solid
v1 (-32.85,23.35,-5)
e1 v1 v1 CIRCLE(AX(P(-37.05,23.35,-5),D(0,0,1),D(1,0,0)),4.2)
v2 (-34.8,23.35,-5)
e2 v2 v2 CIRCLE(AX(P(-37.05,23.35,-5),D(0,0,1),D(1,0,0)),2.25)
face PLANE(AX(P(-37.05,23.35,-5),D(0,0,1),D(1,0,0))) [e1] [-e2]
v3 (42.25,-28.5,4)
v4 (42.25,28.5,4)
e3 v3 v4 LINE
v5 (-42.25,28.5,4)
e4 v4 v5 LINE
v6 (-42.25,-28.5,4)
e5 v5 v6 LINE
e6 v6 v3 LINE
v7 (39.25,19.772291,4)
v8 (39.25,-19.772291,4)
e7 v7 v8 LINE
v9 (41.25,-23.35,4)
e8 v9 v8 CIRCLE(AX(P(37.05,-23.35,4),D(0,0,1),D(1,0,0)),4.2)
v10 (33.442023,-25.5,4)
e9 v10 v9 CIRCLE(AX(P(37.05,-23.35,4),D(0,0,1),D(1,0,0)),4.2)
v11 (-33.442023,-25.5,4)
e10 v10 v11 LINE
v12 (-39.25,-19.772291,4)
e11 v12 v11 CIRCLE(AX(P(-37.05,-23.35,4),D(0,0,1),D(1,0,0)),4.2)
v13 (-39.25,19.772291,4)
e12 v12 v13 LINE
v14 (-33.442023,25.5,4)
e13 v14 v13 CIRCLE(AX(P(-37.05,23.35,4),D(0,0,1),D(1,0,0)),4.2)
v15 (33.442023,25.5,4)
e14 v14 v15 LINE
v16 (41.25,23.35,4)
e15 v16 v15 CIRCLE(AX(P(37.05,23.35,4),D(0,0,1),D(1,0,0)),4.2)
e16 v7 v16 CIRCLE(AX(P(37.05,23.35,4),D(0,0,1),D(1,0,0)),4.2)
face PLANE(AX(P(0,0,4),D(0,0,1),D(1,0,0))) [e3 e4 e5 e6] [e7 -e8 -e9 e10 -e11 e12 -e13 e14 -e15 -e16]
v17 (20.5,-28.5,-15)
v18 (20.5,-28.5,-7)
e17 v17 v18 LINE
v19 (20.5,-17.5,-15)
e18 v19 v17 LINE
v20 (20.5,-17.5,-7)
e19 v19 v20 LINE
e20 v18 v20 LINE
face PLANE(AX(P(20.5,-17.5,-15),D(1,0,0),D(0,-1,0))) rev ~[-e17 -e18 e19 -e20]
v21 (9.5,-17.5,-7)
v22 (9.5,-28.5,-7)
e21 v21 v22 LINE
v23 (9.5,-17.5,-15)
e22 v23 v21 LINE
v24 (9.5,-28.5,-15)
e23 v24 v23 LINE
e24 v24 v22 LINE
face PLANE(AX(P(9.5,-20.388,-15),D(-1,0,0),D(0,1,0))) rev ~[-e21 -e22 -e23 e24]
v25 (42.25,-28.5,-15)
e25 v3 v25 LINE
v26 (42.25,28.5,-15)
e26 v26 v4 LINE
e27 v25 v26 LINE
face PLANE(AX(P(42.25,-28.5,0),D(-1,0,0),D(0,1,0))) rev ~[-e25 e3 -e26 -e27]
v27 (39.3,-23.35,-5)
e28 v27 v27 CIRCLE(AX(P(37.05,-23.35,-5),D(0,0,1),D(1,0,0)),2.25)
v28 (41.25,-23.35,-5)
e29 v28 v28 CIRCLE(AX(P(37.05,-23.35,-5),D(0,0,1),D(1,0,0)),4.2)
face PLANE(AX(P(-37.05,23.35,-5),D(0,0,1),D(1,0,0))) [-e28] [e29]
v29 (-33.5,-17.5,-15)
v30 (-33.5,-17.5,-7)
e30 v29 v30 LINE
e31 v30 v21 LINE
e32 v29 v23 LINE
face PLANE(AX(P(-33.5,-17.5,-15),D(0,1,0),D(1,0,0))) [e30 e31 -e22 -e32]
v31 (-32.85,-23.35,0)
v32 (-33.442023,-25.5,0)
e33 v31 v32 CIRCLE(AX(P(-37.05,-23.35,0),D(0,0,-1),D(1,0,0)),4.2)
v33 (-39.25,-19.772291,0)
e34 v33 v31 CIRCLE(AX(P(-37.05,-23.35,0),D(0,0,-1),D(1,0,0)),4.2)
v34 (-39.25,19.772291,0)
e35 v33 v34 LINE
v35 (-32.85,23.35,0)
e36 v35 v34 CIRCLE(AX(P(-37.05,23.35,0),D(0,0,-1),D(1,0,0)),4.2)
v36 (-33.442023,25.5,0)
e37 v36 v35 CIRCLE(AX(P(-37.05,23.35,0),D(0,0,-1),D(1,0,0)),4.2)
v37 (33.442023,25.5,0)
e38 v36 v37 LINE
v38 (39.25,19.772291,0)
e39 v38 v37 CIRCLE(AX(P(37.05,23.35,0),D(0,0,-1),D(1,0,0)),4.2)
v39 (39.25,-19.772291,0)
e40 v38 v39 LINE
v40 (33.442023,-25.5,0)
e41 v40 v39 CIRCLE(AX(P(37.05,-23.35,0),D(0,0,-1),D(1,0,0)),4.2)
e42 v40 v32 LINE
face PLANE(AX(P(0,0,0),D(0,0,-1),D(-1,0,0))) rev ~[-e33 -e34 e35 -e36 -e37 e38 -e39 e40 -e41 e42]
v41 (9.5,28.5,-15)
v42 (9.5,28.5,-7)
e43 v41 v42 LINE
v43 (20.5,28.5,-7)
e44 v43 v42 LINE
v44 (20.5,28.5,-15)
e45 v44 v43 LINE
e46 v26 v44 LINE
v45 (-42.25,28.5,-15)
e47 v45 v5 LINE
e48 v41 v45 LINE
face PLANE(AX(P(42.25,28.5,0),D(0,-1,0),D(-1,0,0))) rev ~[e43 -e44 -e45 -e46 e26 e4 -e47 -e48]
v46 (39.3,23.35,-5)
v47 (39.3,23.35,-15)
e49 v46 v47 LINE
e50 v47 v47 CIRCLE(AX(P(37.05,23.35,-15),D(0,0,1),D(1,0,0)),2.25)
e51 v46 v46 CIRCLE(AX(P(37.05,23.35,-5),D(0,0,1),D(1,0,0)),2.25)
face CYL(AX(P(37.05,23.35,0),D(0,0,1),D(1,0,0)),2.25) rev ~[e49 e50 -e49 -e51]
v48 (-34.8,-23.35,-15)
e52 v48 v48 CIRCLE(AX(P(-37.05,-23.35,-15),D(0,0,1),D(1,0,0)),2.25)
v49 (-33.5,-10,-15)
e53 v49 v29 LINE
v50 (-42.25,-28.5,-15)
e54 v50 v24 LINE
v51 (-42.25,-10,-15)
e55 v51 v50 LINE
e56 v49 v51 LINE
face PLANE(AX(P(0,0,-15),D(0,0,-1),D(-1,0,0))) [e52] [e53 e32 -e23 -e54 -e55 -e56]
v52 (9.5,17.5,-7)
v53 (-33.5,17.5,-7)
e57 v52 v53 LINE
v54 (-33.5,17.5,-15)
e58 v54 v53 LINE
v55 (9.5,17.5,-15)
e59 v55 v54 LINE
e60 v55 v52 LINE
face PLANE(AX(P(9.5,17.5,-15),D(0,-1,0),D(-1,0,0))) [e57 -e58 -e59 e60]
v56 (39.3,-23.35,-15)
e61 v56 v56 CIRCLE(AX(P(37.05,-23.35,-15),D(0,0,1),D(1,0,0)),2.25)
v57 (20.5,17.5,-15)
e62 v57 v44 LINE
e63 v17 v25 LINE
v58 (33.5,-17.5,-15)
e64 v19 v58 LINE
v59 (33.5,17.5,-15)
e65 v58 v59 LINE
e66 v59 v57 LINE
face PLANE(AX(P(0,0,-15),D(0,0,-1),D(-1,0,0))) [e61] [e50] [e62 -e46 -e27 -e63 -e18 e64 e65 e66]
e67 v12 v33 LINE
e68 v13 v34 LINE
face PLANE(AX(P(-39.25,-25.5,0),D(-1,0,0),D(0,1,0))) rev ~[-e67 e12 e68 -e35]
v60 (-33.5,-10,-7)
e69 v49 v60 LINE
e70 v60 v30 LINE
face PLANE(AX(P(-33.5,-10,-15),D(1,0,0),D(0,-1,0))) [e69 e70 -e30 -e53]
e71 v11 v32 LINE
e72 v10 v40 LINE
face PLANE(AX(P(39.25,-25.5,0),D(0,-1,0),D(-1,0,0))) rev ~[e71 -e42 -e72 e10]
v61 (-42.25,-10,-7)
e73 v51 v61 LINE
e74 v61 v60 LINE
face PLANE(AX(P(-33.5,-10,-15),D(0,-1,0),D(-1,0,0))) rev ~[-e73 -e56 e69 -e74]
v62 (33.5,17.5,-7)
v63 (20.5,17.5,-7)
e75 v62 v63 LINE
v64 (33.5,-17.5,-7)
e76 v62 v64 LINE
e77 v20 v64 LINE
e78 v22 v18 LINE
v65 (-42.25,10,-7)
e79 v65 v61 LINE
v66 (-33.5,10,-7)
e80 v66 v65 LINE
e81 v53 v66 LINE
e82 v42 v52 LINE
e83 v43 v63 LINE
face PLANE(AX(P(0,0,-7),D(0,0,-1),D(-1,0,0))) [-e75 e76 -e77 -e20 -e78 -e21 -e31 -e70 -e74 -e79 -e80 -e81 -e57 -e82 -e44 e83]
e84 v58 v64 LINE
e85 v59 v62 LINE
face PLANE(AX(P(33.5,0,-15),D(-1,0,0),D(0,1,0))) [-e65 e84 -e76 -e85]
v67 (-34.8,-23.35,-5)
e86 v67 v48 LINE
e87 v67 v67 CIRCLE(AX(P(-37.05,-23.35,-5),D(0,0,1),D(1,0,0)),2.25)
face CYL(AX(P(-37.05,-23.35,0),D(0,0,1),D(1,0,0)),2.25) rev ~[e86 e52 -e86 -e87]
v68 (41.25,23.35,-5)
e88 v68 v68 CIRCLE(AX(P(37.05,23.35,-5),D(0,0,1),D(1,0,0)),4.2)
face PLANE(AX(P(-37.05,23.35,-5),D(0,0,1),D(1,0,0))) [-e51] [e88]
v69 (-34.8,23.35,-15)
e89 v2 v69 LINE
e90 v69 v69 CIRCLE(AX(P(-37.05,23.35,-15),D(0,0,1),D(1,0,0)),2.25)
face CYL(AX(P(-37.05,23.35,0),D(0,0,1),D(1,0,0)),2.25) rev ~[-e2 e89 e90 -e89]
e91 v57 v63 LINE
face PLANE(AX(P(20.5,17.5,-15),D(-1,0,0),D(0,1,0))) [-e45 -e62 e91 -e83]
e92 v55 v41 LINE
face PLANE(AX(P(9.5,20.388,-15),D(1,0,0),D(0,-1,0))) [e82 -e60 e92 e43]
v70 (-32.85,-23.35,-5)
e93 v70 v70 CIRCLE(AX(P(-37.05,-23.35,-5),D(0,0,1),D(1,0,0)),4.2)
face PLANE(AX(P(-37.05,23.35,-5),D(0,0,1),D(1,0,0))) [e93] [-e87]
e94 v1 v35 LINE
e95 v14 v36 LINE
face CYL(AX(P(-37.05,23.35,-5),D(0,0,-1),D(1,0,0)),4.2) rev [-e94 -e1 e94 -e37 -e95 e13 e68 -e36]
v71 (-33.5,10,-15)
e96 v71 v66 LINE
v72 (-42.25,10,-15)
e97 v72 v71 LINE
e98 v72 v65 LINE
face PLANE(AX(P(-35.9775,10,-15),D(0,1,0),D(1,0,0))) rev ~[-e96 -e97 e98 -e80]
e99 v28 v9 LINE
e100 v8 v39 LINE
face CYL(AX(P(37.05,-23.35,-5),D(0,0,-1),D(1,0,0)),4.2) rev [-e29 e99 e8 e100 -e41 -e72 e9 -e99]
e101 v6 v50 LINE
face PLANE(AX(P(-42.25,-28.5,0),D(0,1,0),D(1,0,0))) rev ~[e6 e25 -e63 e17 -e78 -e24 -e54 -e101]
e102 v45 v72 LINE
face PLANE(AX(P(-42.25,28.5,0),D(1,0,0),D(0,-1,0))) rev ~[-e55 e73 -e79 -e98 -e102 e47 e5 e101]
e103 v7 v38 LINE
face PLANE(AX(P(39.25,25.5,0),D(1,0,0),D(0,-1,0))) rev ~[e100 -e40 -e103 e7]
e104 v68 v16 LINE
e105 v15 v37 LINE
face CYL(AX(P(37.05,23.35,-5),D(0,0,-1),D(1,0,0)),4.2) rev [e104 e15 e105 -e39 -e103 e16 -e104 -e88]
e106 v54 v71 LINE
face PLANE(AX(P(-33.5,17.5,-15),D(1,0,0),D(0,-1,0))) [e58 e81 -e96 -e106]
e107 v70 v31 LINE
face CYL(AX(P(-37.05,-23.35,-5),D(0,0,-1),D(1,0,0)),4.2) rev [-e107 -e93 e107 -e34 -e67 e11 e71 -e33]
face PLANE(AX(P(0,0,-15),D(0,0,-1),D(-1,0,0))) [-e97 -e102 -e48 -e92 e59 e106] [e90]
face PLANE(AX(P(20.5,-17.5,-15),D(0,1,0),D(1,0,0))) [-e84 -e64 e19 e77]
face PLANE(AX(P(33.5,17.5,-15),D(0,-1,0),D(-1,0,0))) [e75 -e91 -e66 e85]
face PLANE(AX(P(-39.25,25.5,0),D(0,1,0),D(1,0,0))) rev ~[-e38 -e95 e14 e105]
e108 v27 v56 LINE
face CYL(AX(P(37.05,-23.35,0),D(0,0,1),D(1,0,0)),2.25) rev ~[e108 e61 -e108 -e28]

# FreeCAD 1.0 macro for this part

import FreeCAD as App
import Part
import Sketcher


def add_polygon(sketch, points):
    """Adds a closed chain of lines whose ends are joined by coincident constraints."""
    first, n = sketch.GeometryCount, len(points)
    for a, b in zip(points, points[1:] + points[:1]):
        sketch.addGeometry(Part.LineSegment(App.Vector(*a, 0), App.Vector(*b, 0)), False)
    for i in range(n):
        sketch.addConstraint(Sketcher.Constraint("Coincident", first + i, 2, first + (i + 1) % n, 1))

doc = App.newDocument("Part")
body = doc.addObject("PartDesign::Body", "Body")

# Sketch on XY plane
sketch1 = body.newObject("Sketcher::SketchObject", "Sketch")
sketch1.AttachmentSupport = (doc.getObject("XY_Plane"), [""])
sketch1.MapMode = "FlatFace"
add_polygon(sketch1, [(42, -28), (42, 28), (-42, 28), (-42, -28)])  # lines 0-3
add_polygon(sketch1, [(-39, -26), (-39, 26), (39, 26), (39, -26)])  # lines 4-7
sketch1.addConstraint([
    Sketcher.Constraint("Vertical", 0),
    Sketcher.Constraint("Horizontal", 1),
    Sketcher.Constraint("Vertical", 2),
    Sketcher.Constraint("Horizontal", 3),
    Sketcher.Constraint("Vertical", 4),
    Sketcher.Constraint("Horizontal", 5),
    Sketcher.Constraint("Vertical", 6),
    Sketcher.Constraint("Horizontal", 7),
    Sketcher.Constraint("Symmetric", 0, 2, 2, 2, -1, 1),
    Sketcher.Constraint("Symmetric", 4, 2, 6, 2, -1, 1),
    Sketcher.Constraint("DistanceY", 4, 1, 4, 2, 51.0),
    Sketcher.Constraint("DistanceX", 5, 1, 5, 2, 78.5),
    Sketcher.Constraint("DistanceX", 1, 2, 4, 2, 3.0),
    Sketcher.Constraint("DistanceY", 4, 2, 1, 2, 3.0),
])
pad1 = body.newObject("PartDesign::Pad", "Pad")
pad1.Profile = sketch1
pad1.Length = 4

# Sketch on XY plane
sketch2 = body.newObject("Sketcher::SketchObject", "Sketch001")
sketch2.AttachmentSupport = (doc.getObject("XY_Plane"), [""])
sketch2.MapMode = "FlatFace"
add_polygon(sketch2, [(-42, 28), (42, 28), (42, -28), (-42, -28)])  # lines 0-3
sketch2.addConstraint([
    Sketcher.Constraint("Horizontal", 0),
    Sketcher.Constraint("Vertical", 1),
    Sketcher.Constraint("Horizontal", 2),
    Sketcher.Constraint("Vertical", 3),
    Sketcher.Constraint("Symmetric", 0, 2, 2, 2, -1, 1),
    Sketcher.Constraint("DistanceY", 1, 2, 1, 1, 57.0),
    Sketcher.Constraint("DistanceX", 0, 1, 0, 2, 84.5),
])
pad2 = body.newObject("PartDesign::Pad", "Pad001")
pad2.Profile = sketch2
pad2.Length = 15
pad2.Reversed = True

# Sketch on XY plane
sketch3 = body.newObject("Sketcher::SketchObject", "Sketch002")
sketch3.AttachmentSupport = (doc.getObject("XY_Plane"), [""])
sketch3.MapMode = "FlatFace"
sketch3.AttachmentOffset = App.Placement(App.Vector(0, 0, -15), App.Rotation())
add_polygon(sketch3, [(20, 18), (34, 18), (34, -18), (20, -18), (20, -28), (10, -28), (10, -18), (-34, -18), (-34, -10), (-42, -10), (-42, 10), (-34, 10), (-34, 18), (10, 18), (10, 28), (20, 28)])  # lines 0-15
sketch3.addConstraint([
    Sketcher.Constraint("Horizontal", 0),
    Sketcher.Constraint("Vertical", 1),
    Sketcher.Constraint("Horizontal", 2),
    Sketcher.Constraint("Vertical", 3),
    Sketcher.Constraint("Horizontal", 4),
    Sketcher.Constraint("Vertical", 5),
    Sketcher.Constraint("Horizontal", 6),
    Sketcher.Constraint("Vertical", 7),
    Sketcher.Constraint("Horizontal", 8),
    Sketcher.Constraint("Vertical", 9),
    Sketcher.Constraint("Horizontal", 10),
    Sketcher.Constraint("Vertical", 11),
    Sketcher.Constraint("Horizontal", 12),
    Sketcher.Constraint("Vertical", 13),
    Sketcher.Constraint("Horizontal", 14),
    Sketcher.Constraint("Vertical", 15),
    Sketcher.Constraint("Symmetric", 0, 2, 6, 2, -1, 1),
    Sketcher.Constraint("Symmetric", 1, 2, 11, 2, -1, 1),
    Sketcher.Constraint("Symmetric", 5, 2, 12, 2, -1),
    Sketcher.Constraint("Symmetric", 3, 2, 14, 2, -1),
    Sketcher.Constraint("Equal", 14, 3),
    Sketcher.Constraint("Equal", 7, 11),
    Sketcher.Constraint("DistanceX", 0, 1, 0, 2, 13.0),
    Sketcher.Constraint("DistanceX", 4, 2, 4, 1, 11.0),
    Sketcher.Constraint("DistanceY", 1, 2, 1, 1, 35.0),
    Sketcher.Constraint("DistanceY", 9, 1, 9, 2, 20.0),
    Sketcher.Constraint("DistanceX", 6, 2, 1, 2, 67.0),
    Sketcher.Constraint("DistanceX", 8, 2, 8, 1, 8.75),
])
pocket1 = body.newObject("PartDesign::Pocket", "Pocket")
pocket1.Profile = sketch3
pocket1.Length = 8
pocket1.Reversed = True

# Sketch on XY plane
sketch4 = body.newObject("Sketcher::SketchObject", "Sketch003")
sketch4.AttachmentSupport = (doc.getObject("XY_Plane"), [""])
sketch4.MapMode = "FlatFace"
sketch4.addGeometry([
    Part.Circle(App.Vector(-37, -23.4, 0), App.Vector(0, 0, 1), 2.2),
    Part.Circle(App.Vector(-37, 23.4, 0), App.Vector(0, 0, 1), 2.2),
    Part.Circle(App.Vector(37, -23.4, 0), App.Vector(0, 0, 1), 2.2),
    Part.Circle(App.Vector(37, 23.4, 0), App.Vector(0, 0, 1), 2.2),
], False)
sketch4.addConstraint([
    Sketcher.Constraint("Equal", 0, 1),
    Sketcher.Constraint("Equal", 1, 2),
    Sketcher.Constraint("Equal", 2, 3),
    Sketcher.Constraint("Symmetric", 1, 3, 2, 3, -1, 1),
    Sketcher.Constraint("Symmetric", 0, 3, 3, 3, -1, 1),
    Sketcher.Constraint("Symmetric", 0, 3, 2, 3, -2),
    Sketcher.Constraint("Diameter", 0, 4.5),
    Sketcher.Constraint("DistanceY", 0, 3, 1, 3, 46.7),
    Sketcher.Constraint("DistanceX", 0, 3, 2, 3, 74.1),
])
pocket2 = body.newObject("PartDesign::Pocket", "Pocket001")
pocket2.Profile = sketch4
pocket2.Length = 15

# Sketch on XY plane
sketch5 = body.newObject("Sketcher::SketchObject", "Sketch004")
sketch5.AttachmentSupport = (doc.getObject("XY_Plane"), [""])
sketch5.MapMode = "FlatFace"
sketch5.addGeometry([
    Part.Circle(App.Vector(37, 23.4, 0), App.Vector(0, 0, 1), 2.5),
    Part.Circle(App.Vector(37, -23.4, 0), App.Vector(0, 0, 1), 2.1),
    Part.Circle(App.Vector(-37, -23.4, 0), App.Vector(0, 0, 1), 2.5),
], False)
sketch5.addConstraint([
    Sketcher.Constraint("Equal", 0, 2),
    Sketcher.Constraint("Symmetric", 0, 3, 2, 3, -1, 1),
    Sketcher.Constraint("Symmetric", 1, 3, 2, 3, -2),
    Sketcher.Constraint("Diameter", 0, 5.0),
    Sketcher.Constraint("Diameter", 1, 4.3),
    Sketcher.Constraint("DistanceY", 1, 3, 0, 3, 46.7),
    Sketcher.Constraint("DistanceX", 2, 3, 1, 3, 74.1),
])
pocket3 = body.newObject("PartDesign::Pocket", "Pocket002")
pocket3.Profile = sketch5
pocket3.Length = 5

# Sketch on XY plane
sketch6 = body.newObject("Sketcher::SketchObject", "Sketch005")
sketch6.AttachmentSupport = (doc.getObject("XY_Plane"), [""])
sketch6.MapMode = "FlatFace"
sketch6.AttachmentOffset = App.Placement(App.Vector(0, 0, -5), App.Rotation())
sketch6.addGeometry([
    Part.Circle(App.Vector(-37, 23.4, 0), App.Vector(0, 0, 1), 4.2),
    Part.Circle(App.Vector(37, 23.4, 0), App.Vector(0, 0, 1), 4.2),
    Part.Circle(App.Vector(-37, -23.4, 0), App.Vector(0, 0, 1), 4.2),
    Part.Circle(App.Vector(37, -23.4, 0), App.Vector(0, 0, 1), 4.2),
], False)
sketch6.addConstraint([
    Sketcher.Constraint("Equal", 0, 1),
    Sketcher.Constraint("Equal", 1, 2),
    Sketcher.Constraint("Equal", 2, 3),
    Sketcher.Constraint("Symmetric", 1, 3, 2, 3, -1, 1),
    Sketcher.Constraint("Symmetric", 0, 3, 3, 3, -1, 1),
    Sketcher.Constraint("Symmetric", 0, 3, 1, 3, -2),
    Sketcher.Constraint("Diameter", 0, 8.4),
    Sketcher.Constraint("DistanceX", 0, 3, 1, 3, 74.1),
    Sketcher.Constraint("DistanceY", 2, 3, 0, 3, 46.7),
])
pocket4 = body.newObject("PartDesign::Pocket", "Pocket003")
pocket4.Profile = sketch6
pocket4.Length = 9
pocket4.Reversed = True

doc.recompute()
